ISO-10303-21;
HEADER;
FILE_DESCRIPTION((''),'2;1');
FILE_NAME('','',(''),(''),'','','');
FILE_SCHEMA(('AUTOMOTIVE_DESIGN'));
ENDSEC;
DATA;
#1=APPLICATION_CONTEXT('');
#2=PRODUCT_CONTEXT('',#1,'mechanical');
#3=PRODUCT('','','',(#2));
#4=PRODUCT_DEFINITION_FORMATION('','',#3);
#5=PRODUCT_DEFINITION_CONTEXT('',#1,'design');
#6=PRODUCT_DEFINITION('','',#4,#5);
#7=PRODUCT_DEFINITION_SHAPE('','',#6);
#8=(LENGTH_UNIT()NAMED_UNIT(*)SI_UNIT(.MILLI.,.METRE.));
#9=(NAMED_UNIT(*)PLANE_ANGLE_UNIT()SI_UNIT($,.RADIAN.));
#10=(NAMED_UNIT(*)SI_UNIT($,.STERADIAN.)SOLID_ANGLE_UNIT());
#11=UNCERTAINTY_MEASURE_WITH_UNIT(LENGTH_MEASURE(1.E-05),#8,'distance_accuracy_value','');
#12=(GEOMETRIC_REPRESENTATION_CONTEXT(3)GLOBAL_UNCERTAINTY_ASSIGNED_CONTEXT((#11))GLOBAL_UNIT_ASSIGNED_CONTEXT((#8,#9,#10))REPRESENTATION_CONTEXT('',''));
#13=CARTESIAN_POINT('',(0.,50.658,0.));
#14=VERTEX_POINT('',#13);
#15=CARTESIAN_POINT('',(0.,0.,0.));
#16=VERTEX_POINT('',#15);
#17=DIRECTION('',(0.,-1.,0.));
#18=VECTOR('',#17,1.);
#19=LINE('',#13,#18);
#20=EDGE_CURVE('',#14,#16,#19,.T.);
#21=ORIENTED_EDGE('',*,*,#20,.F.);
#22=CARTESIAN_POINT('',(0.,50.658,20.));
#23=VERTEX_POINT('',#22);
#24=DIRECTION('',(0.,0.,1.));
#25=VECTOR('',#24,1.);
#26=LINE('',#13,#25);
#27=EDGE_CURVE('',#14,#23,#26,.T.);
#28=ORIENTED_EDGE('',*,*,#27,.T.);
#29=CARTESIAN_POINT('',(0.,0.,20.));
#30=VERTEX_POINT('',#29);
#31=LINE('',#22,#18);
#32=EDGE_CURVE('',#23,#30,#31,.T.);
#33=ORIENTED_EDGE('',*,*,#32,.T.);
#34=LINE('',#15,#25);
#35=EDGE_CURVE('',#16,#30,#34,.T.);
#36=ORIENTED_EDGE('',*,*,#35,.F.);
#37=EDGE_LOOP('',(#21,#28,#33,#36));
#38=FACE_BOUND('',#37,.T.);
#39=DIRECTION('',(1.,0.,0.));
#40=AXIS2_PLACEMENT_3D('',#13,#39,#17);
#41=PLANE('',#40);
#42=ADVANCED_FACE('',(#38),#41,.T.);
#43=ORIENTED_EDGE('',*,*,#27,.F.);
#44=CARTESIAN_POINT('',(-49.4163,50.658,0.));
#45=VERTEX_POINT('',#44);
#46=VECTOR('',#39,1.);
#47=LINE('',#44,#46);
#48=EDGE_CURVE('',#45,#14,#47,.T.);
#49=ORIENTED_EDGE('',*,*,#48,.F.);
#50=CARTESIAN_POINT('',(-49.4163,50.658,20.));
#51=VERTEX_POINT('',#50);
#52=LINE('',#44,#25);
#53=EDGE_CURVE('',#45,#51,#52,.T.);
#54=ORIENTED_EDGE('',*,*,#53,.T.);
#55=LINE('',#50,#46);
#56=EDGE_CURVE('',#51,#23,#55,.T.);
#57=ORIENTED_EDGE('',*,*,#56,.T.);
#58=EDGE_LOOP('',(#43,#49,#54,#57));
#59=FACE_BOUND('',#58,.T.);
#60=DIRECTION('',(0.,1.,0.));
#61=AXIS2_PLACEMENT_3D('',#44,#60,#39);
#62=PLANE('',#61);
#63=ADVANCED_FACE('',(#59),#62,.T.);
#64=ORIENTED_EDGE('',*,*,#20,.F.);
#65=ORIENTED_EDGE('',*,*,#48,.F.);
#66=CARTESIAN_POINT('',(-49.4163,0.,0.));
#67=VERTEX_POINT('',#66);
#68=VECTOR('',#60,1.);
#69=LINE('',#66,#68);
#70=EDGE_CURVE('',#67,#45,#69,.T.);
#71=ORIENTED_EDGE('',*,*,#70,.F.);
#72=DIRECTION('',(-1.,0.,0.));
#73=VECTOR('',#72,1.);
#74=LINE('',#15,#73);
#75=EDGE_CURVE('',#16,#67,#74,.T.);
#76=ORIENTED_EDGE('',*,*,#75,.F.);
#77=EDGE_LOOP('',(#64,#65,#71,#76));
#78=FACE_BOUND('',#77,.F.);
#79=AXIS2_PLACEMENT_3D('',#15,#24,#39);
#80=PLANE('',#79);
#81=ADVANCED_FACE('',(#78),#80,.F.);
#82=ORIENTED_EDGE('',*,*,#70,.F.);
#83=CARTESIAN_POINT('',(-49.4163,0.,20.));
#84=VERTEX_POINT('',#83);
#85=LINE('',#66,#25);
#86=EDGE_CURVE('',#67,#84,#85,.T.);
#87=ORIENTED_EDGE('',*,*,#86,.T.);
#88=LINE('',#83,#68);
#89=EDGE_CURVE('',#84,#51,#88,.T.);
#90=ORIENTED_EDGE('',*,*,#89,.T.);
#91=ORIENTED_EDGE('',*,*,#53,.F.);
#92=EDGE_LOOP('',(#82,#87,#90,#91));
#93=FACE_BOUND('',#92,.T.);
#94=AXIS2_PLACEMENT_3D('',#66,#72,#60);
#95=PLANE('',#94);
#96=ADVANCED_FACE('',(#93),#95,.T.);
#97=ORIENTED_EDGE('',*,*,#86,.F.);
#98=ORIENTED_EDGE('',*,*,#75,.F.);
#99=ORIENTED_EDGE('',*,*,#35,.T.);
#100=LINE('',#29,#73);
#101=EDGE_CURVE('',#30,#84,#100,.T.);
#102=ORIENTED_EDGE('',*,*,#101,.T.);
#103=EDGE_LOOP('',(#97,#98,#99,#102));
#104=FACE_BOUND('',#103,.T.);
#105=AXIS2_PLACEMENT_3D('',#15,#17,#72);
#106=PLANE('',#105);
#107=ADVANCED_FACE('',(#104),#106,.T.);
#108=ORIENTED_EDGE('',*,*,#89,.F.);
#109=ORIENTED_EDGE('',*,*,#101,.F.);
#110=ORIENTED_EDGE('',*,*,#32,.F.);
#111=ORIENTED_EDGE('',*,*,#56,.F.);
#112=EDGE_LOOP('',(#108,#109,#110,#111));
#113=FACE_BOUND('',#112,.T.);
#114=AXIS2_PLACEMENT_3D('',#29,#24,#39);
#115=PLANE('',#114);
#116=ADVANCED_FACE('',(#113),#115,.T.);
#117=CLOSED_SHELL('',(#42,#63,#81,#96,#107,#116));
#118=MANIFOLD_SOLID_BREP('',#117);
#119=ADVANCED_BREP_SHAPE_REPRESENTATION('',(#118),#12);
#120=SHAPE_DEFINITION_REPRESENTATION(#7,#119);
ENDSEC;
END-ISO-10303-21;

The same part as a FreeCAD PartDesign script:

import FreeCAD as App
import Part
import Sketcher
Q = App.Units.Quantity


def add_polygon(sketch, points):
    """Adds a closed chain of lines whose ends are joined by coincident constraints."""
    first, n = sketch.GeometryCount, len(points)
    for a, b in zip(points, points[1:] + points[:1]):
        sketch.addGeometry(Part.LineSegment(App.Vector(*a, 0), App.Vector(*b, 0)), False)
    for i in range(n):
        sketch.addConstraint(Sketcher.Constraint("Coincident", first + i, 2, first + (i + 1) % n, 1))

doc = App.newDocument("Part")
body = doc.addObject("PartDesign::Body", "Body")

# Sketch on XY plane
sketch1 = body.newObject("Sketcher::SketchObject", "Sketch")
sketch1.AttachmentSupport = (doc.getObject("XY_Plane"), [""])
sketch1.MapMode = "FlatFace"
add_polygon(sketch1, [(0, 51), (-49, 51), (-49, 0), (0, 0)])  # lines 0-3
sketch1.addConstraint(Sketcher.Constraint("Horizontal", 0))
sketch1.addConstraint(Sketcher.Constraint("Vertical", 1))
sketch1.addConstraint(Sketcher.Constraint("Horizontal", 2))
sketch1.addConstraint(Sketcher.Constraint("Vertical", 3))
sketch1.addConstraint(Sketcher.Constraint("Coincident", 2, 2, -1, 1))
sketch1.addConstraint(Sketcher.Constraint("DistanceY", 1, 2, 1, 1, Q("50.658 mm")))
sketch1.addConstraint(Sketcher.Constraint("DistanceX", 0, 2, 0, 1, Q("49.4163 mm")))
pad1 = body.newObject("PartDesign::Pad", "Pad")
pad1.Profile = sketch1
pad1.Length = 20

doc.recompute()
